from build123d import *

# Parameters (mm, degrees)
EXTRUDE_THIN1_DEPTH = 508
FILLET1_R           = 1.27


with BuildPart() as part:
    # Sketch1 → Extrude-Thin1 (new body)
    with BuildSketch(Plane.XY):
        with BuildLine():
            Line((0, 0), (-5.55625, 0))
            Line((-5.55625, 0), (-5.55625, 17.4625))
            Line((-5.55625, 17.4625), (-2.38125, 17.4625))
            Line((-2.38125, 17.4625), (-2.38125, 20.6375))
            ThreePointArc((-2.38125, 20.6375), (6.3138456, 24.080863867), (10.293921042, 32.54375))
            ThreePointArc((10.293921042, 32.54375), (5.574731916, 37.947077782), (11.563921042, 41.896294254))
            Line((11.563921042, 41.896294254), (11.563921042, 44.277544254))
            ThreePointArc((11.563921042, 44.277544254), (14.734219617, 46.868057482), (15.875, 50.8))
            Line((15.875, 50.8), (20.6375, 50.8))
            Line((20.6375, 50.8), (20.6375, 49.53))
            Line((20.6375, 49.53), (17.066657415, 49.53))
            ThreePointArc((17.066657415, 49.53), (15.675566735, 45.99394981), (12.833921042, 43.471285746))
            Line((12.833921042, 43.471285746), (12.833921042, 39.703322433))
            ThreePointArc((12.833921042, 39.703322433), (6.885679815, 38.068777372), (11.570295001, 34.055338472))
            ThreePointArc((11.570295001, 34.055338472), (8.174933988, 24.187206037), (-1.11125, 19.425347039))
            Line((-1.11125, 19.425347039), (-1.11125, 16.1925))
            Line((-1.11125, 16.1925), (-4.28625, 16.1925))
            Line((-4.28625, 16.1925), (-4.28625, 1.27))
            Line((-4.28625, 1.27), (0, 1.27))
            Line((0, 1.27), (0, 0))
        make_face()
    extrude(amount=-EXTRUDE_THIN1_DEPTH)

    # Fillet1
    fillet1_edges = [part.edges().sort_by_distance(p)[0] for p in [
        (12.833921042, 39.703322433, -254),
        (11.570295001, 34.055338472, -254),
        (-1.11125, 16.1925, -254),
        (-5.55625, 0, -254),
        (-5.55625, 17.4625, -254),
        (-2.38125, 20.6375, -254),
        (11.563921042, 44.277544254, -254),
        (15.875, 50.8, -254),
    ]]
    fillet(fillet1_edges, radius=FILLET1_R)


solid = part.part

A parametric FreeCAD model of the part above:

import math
import FreeCAD as App
import Part
import Sketcher
Q = App.Units.Quantity


def edges_at(feature, points):
    """Names of the edges that pass closest to the given points."""
    edges = feature.Shape.Edges
    near = lambda p: min(range(len(edges)), key=lambda i: edges[i].distToShape(Part.Vertex(*p))[0])
    return sorted({f"Edge{near(p) + 1}" for p in points})

doc = App.newDocument("Part")
body = doc.addObject("PartDesign::Body", "Body")

# Sketch on XY plane
sketch1 = body.newObject("Sketcher::SketchObject", "Sketch")
sketch1.AttachmentSupport = (doc.getObject("XY_Plane"), [""])
sketch1.MapMode = "FlatFace"
sketch1.addGeometry([
    Part.LineSegment(App.Vector(-5.6, 0, 0), App.Vector(0, 0, 0)),  # 0
    Part.LineSegment(App.Vector(0, 0, 0), App.Vector(0, 1.3, 0)),  # 1
    Part.LineSegment(App.Vector(0, 1.3, 0), App.Vector(-4.3, 1.3, 0)),  # 2
    Part.LineSegment(App.Vector(-4.3, 1.3, 0), App.Vector(-4.3, 16.2, 0)),  # 3
    Part.LineSegment(App.Vector(-4.3, 16.2, 0), App.Vector(-1.1, 16.2, 0)),  # 4
    Part.LineSegment(App.Vector(-1.1, 16.2, 0), App.Vector(-1.1, 19.4, 0)),  # 5
    Part.ArcOfCircle(Part.Circle(App.Vector(-2.4, 33.3, 0), App.Vector(0, 0, 1), 14), math.radians(-85), math.radians(3)),  # 6
    Part.ArcOfCircle(Part.Circle(App.Vector(10.3, 37.3, 0), App.Vector(0, 0, 1), 3.5), math.radians(43), math.radians(291)),  # 7
    Part.LineSegment(App.Vector(12.8, 39.7, 0), App.Vector(12.8, 43.5, 0)),  # 8
    Part.ArcOfCircle(Part.Circle(App.Vector(9, 50.7, 0), App.Vector(0, 0, 1), 8.2), math.radians(-62), math.radians(-8)),  # 9
    Part.LineSegment(App.Vector(17.1, 49.5, 0), App.Vector(20.6, 49.5, 0)),  # 10
    Part.LineSegment(App.Vector(20.6, 49.5, 0), App.Vector(20.6, 50.8, 0)),  # 11
    Part.LineSegment(App.Vector(20.6, 50.8, 0), App.Vector(15.9, 50.8, 0)),  # 12
    Part.ArcOfCircle(Part.Circle(App.Vector(9, 50.7, 0), App.Vector(0, 0, 1), 6.9), math.radians(-68), math.radians(1)),  # 13
    Part.LineSegment(App.Vector(11.6, 44.3, 0), App.Vector(11.6, 41.9, 0)),  # 14
    Part.ArcOfCircle(Part.Circle(App.Vector(10.3, 37.3, 0), App.Vector(0, 0, 1), 4.8), math.radians(75), math.radians(270)),  # 15
    Part.ArcOfCircle(Part.Circle(App.Vector(-2.4, 33.3, 0), App.Vector(0, 0, 1), 12.7), math.radians(-90), math.radians(-4)),  # 16
    Part.LineSegment(App.Vector(-2.4, 20.6, 0), App.Vector(-2.4, 17.5, 0)),  # 17
    Part.LineSegment(App.Vector(-2.4, 17.5, 0), App.Vector(-5.6, 17.5, 0)),  # 18
    Part.LineSegment(App.Vector(-5.6, 17.5, 0), App.Vector(-5.6, 0, 0)),  # 19
], False)
sketch1.addConstraint([
    Sketcher.Constraint("Coincident", 0, 2, 1, 1),
    Sketcher.Constraint("Coincident", 1, 2, 2, 1),
    Sketcher.Constraint("Coincident", 2, 2, 3, 1),
    Sketcher.Constraint("Coincident", 3, 2, 4, 1),
    Sketcher.Constraint("Coincident", 4, 2, 5, 1),
    Sketcher.Constraint("Coincident", 5, 2, 6, 1),
    Sketcher.Constraint("Coincident", 6, 2, 7, 2),
    Sketcher.Constraint("Coincident", 7, 1, 8, 1),
    Sketcher.Constraint("Coincident", 8, 2, 9, 1),
    Sketcher.Constraint("Coincident", 9, 2, 10, 1),
    Sketcher.Constraint("Coincident", 10, 2, 11, 1),
    Sketcher.Constraint("Coincident", 11, 2, 12, 1),
    Sketcher.Constraint("Coincident", 12, 2, 13, 2),
    Sketcher.Constraint("Coincident", 13, 1, 14, 1),
    Sketcher.Constraint("Coincident", 14, 2, 15, 1),
    Sketcher.Constraint("Coincident", 15, 2, 16, 2),
    Sketcher.Constraint("Coincident", 16, 1, 17, 1),
    Sketcher.Constraint("Coincident", 17, 2, 18, 1),
    Sketcher.Constraint("Coincident", 18, 2, 19, 1),
    Sketcher.Constraint("Coincident", 19, 2, 0, 1),
    Sketcher.Constraint("Horizontal", 0),
    Sketcher.Constraint("Vertical", 1),
    Sketcher.Constraint("Horizontal", 2),
    Sketcher.Constraint("Vertical", 3),
    Sketcher.Constraint("Horizontal", 4),
    Sketcher.Constraint("Vertical", 5),
    Sketcher.Constraint("Vertical", 8),
    Sketcher.Constraint("Horizontal", 10),
    Sketcher.Constraint("Vertical", 11),
    Sketcher.Constraint("Horizontal", 12),
    Sketcher.Constraint("Vertical", 14),
    Sketcher.Constraint("Vertical", 17),
    Sketcher.Constraint("Horizontal", 18),
    Sketcher.Constraint("Vertical", 19),
    Sketcher.Constraint("Coincident", 0, 2, -1, 1),
    Sketcher.Constraint("Coincident", 13, 3, 9, 3),
    Sketcher.Constraint("Coincident", 15, 3, 7, 3),
    Sketcher.Constraint("Coincident", 16, 3, 6, 3),
    Sketcher.Constraint("Vertical", 7, 3, 15, 2),
    Sketcher.Constraint("Vertical", 6, 3, 16, 1),
    Sketcher.Constraint("Equal", 4, 18),
    Sketcher.Constraint("Equal", 1, 11),
    Sketcher.Constraint("Equal", 18, 17),
    Sketcher.Constraint("Radius", 16, Q("0.5 in")),
    Sketcher.Constraint("Radius", 6, Q("0.55 in")),
    Sketcher.Constraint("DistanceY", -1, 1, 11, 2, Q("2 in")),
    Sketcher.Constraint("Radius", 15, Q("0.1875 in")),
    Sketcher.Constraint("DistanceY", 1, 1, 1, 2, Q("0.05 in")),
    Sketcher.Constraint("Radius", 7, Q("0.1375 in")),
    Sketcher.Constraint("DistanceX", 15, 3, 7, 1, Q("0.1 in")),
    Sketcher.Constraint("DistanceX", 0, 1, 0, 2, Q("0.21875 in")),
    Sketcher.Constraint("DistanceX", 4, 1, 4, 2, Q("0.125 in")),
    Sketcher.Constraint("DistanceX", 12, 2, 12, 1, Q("0.1875 in")),
    Sketcher.Constraint("DistanceY", 14, 2, 14, 1, Q("0.09375 in")),
    Sketcher.Constraint("DistanceY", 19, 2, 19, 1, Q("0.6875 in")),
    Sketcher.Constraint("Radius", 9, 8.1599),
    Sketcher.Constraint("Radius", 13, 6.8899),
    Sketcher.Constraint("DistanceX", 6, 3, 4, 2, Q("0.05 in")),
    Sketcher.Constraint("DistanceX", 13, 1, 8, 2, Q("0.05 in")),
    Sketcher.Constraint("DistanceY", 4, 2, 17, 2, Q("0.05 in")),
    Sketcher.Constraint("DistanceY", -1, 1, 7, 3, Q("1.46875 in")),
    Sketcher.Constraint("DistanceX", -1, 1, 10, 2, Q("0.8125 in")),
])
pad1 = body.newObject("PartDesign::Pad", "Pad")
pad1.Profile = sketch1
pad1.Length = Q("20 in")
pad1.Reversed = True
doc.recompute()

fillet = body.newObject("PartDesign::Fillet", "Fillet")
fillet.Base = (pad1, edges_at(pad1, [
    (12.834, 39.703, -254),
    (11.57, 34.055, -254),
    (-1.111, 16.192, -254),
    (-5.556, 0, -254),
    (-5.556, 17.462, -254),
    (-2.381, 20.637, -254),
    (11.564, 44.278, -254),
    (15.875, 50.8, -254),
]))
fillet.Radius = Q("0.05 in")

doc.recompute()
